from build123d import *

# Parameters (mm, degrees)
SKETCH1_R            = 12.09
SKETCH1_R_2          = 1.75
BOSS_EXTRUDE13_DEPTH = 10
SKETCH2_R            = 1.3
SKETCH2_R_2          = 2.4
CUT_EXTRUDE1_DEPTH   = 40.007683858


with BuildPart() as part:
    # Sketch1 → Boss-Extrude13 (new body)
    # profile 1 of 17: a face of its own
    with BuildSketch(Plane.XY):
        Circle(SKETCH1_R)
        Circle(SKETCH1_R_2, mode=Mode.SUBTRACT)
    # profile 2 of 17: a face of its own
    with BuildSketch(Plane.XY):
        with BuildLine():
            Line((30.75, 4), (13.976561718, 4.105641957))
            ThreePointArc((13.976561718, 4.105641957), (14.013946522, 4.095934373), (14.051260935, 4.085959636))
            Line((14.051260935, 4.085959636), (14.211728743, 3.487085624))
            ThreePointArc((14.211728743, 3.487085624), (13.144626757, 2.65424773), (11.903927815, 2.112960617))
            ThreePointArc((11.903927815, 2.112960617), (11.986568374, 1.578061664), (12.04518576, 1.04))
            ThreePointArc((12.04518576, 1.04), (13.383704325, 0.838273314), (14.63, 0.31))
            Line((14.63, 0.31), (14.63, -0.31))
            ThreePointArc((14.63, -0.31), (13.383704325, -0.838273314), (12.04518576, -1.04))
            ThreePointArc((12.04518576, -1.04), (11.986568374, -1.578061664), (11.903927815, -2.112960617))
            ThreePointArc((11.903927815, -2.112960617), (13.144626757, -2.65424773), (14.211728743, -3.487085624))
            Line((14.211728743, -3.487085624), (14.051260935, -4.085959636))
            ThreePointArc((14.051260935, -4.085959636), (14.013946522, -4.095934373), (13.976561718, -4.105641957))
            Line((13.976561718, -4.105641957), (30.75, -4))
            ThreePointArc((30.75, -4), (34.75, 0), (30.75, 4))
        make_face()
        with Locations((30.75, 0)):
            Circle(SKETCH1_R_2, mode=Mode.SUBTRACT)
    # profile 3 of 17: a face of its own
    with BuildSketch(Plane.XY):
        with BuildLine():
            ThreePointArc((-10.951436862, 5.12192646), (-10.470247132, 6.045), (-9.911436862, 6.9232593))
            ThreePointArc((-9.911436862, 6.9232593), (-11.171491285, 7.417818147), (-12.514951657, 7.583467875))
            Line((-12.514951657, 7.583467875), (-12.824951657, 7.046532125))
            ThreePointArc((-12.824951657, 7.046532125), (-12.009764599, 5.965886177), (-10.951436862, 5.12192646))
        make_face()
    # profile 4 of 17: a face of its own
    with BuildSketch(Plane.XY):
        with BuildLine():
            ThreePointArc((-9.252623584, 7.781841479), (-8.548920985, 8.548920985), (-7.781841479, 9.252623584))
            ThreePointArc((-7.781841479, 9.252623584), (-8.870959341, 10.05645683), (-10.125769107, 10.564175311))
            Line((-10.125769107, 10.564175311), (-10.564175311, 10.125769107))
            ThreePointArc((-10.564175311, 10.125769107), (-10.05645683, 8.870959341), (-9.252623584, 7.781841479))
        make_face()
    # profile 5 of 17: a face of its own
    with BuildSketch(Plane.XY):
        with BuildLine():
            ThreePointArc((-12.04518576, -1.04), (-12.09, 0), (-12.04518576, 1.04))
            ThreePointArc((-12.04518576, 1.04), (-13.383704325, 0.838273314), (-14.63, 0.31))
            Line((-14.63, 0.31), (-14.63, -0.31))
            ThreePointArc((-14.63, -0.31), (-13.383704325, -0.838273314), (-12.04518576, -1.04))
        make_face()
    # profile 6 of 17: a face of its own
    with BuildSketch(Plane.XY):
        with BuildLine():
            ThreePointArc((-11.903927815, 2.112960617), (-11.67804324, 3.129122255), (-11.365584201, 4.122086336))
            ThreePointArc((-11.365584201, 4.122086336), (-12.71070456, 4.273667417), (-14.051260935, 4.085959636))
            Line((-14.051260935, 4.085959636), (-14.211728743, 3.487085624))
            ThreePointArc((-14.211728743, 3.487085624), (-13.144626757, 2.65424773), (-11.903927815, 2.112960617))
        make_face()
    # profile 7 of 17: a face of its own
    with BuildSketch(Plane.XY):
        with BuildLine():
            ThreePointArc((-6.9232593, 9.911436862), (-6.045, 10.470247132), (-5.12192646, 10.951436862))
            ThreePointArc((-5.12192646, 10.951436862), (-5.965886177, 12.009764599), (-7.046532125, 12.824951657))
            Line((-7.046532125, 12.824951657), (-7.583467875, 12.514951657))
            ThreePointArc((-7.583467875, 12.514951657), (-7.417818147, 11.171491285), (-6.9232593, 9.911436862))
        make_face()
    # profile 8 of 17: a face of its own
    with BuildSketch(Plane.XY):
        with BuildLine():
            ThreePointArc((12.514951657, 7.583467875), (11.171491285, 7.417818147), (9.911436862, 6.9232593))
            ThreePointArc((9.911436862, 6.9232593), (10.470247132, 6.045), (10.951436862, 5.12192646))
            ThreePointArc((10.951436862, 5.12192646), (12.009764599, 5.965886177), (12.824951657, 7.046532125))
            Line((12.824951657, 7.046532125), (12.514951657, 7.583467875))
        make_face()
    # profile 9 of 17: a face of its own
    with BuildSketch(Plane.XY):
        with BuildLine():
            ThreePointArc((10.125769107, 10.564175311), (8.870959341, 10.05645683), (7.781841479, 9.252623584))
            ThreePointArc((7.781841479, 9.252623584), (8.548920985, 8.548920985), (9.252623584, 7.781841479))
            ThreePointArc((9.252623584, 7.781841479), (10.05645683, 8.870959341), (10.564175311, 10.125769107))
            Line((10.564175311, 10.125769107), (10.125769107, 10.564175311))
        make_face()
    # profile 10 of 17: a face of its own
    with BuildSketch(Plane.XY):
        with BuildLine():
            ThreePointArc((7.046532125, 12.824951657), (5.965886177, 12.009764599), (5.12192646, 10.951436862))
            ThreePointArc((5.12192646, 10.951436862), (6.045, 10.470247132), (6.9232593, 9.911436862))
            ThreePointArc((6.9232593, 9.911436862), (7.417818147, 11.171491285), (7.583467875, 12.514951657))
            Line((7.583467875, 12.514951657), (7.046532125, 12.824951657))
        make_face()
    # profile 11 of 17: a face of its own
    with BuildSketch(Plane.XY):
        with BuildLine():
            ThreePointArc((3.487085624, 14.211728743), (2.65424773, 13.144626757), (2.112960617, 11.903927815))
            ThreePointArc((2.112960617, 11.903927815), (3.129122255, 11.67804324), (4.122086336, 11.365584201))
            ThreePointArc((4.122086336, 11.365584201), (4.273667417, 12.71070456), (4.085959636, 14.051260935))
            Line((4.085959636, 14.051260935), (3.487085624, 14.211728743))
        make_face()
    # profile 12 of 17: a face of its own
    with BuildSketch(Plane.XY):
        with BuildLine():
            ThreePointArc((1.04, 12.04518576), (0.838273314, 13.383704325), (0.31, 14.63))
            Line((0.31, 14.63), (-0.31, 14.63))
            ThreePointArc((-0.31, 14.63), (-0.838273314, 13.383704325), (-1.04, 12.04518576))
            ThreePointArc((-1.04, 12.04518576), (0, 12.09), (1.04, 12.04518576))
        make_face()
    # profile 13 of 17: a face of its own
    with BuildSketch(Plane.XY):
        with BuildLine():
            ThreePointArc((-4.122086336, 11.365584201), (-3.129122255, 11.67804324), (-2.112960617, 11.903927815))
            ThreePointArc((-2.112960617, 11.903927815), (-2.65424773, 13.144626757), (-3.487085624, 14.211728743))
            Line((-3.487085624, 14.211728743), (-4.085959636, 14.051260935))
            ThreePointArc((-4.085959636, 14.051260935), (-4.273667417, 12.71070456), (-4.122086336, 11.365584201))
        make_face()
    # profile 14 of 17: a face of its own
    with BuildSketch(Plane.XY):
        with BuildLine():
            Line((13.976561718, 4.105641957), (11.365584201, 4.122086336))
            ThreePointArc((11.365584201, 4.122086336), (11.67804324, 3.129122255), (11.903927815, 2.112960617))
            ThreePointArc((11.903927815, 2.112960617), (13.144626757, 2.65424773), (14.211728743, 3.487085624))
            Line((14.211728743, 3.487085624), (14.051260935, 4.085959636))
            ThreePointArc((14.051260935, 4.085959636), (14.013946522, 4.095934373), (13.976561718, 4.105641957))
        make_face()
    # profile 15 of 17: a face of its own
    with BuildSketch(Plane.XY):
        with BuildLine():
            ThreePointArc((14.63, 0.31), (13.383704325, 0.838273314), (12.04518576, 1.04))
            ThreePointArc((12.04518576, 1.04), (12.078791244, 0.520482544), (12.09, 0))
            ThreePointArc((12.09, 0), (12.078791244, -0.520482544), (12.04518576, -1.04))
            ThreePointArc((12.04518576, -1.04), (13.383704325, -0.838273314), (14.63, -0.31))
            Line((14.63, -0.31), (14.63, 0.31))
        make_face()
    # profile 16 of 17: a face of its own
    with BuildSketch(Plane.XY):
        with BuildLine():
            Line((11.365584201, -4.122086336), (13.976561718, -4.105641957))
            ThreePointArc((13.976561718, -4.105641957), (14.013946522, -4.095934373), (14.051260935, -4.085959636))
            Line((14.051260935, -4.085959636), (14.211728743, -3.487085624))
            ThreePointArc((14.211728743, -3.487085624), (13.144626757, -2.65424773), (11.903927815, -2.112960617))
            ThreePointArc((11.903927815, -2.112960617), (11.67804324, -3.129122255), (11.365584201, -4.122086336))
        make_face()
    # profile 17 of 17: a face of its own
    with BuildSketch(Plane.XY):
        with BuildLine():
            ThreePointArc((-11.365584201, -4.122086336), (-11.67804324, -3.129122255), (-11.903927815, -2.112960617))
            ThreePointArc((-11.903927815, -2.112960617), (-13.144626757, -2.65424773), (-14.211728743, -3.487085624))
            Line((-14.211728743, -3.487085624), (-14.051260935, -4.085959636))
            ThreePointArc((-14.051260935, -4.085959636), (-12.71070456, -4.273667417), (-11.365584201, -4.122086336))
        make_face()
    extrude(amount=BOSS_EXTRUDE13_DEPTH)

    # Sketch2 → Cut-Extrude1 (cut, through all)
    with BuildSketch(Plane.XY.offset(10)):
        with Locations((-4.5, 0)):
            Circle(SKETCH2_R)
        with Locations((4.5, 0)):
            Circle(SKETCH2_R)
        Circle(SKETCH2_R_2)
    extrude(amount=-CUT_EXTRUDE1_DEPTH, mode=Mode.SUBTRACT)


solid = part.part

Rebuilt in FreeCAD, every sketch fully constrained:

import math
import FreeCAD as App
import Part
import Sketcher
from FreeCAD import Vector
Q = App.Units.Quantity

doc = App.newDocument("Part")
body = doc.addObject("PartDesign::Body", "Body")

sketch1 = doc.addObject("Sketcher::SketchObject", "Sketch")
body.addObject(sketch1)
sketch1.AttachmentSupport = (doc.XY_Plane, [""])
sketch1.MapMode = "FlatFace"
sketch1.addGeometry([
    Part.ArcOfCircle(Part.Circle(Vector(0, 0, 0), Vector(0, 0, 1), 12.1), math.radians(19.93), math.radians(25.07)),
    Part.ArcOfCircle(Part.Circle(Vector(8.1, 9.7, 0), Vector(0, 0, 1), 5.4), math.radians(-59), math.radians(-30)),
    Part.LineSegment(Vector(12.8, 7, 0), Vector(12.5, 7.6, 0)),
    Part.ArcOfCircle(Part.Circle(Vector(12.5, 2.2, 0), Vector(0, 0, 1), 5.4), math.radians(90), math.radians(119)),
    Part.ArcOfCircle(Part.Circle(Vector(0, 0, 0), Vector(0, 0, 1), 12.1), math.radians(34.93), math.radians(40.07)),
    Part.ArcOfCircle(Part.Circle(Vector(5.3, 11.5, 0), Vector(0, 0, 1), 5.4), math.radians(-44), math.radians(-15)),
    Part.LineSegment(Vector(10.6, 10.1, 0), Vector(10.1, 10.6, 0)),
    Part.ArcOfCircle(Part.Circle(Vector(11.5, 5.3, 0), Vector(0, 0, 1), 5.4), math.radians(105), math.radians(134)),
    Part.ArcOfCircle(Part.Circle(Vector(0, 0, 0), Vector(0, 0, 1), 12.1), math.radians(49.93), math.radians(55.07)),
    Part.ArcOfCircle(Part.Circle(Vector(2.2, 12.5, 0), Vector(0, 0, 1), 5.4), math.radians(-29), math.radians(0)),
    Part.LineSegment(Vector(7.6, 12.5, 0), Vector(7, 12.8, 0)),
    Part.ArcOfCircle(Part.Circle(Vector(9.7, 8.1, 0), Vector(0, 0, 1), 5.4), math.radians(120), math.radians(149)),
    Part.ArcOfCircle(Part.Circle(Vector(0, 0, 0), Vector(0, 0, 1), 12.1), math.radians(64.93), math.radians(70.07)),
    Part.ArcOfCircle(Part.Circle(Vector(-1.1, 12.6, 0), Vector(0, 0, 1), 5.4), math.radians(-14), math.radians(15)),
    Part.LineSegment(Vector(4.1, 14.1, 0), Vector(3.5, 14.2, 0)),
    Part.ArcOfCircle(Part.Circle(Vector(7.3, 10.4, 0), Vector(0, 0, 1), 5.4), math.radians(135), math.radians(164)),
    Part.ArcOfCircle(Part.Circle(Vector(0, 0, 0), Vector(0, 0, 1), 12.1), math.radians(79.93), math.radians(85.07)),
    Part.ArcOfCircle(Part.Circle(Vector(-4.4, 11.9, 0), Vector(0, 0, 1), 5.4), math.radians(1), math.radians(30)),
    Part.LineSegment(Vector(0.3, 14.6, 0), Vector(-0.3, 14.6, 0)),
    Part.ArcOfCircle(Part.Circle(Vector(4.4, 11.9, 0), Vector(0, 0, 1), 5.4), math.radians(150), math.radians(179)),
    Part.ArcOfCircle(Part.Circle(Vector(0, 0, 0), Vector(0, 0, 1), 12.1), math.radians(94.93), math.radians(100.07)),
    Part.ArcOfCircle(Part.Circle(Vector(-7.3, 10.4, 0), Vector(0, 0, 1), 5.4), math.radians(16), math.radians(45)),
    Part.LineSegment(Vector(-3.5, 14.2, 0), Vector(-4.1, 14.1, 0)),
    Part.ArcOfCircle(Part.Circle(Vector(1.1, 12.6, 0), Vector(0, 0, 1), 5.4), math.radians(165), math.radians(194)),
    Part.ArcOfCircle(Part.Circle(Vector(0, 0, 0), Vector(0, 0, 1), 12.1), math.radians(109.93), math.radians(115.07)),
    Part.ArcOfCircle(Part.Circle(Vector(-9.7, 8.1, 0), Vector(0, 0, 1), 5.4), math.radians(31), math.radians(60)),
    Part.LineSegment(Vector(-7, 12.8, 0), Vector(-7.6, 12.5, 0)),
    Part.ArcOfCircle(Part.Circle(Vector(-2.2, 12.5, 0), Vector(0, 0, 1), 5.4), math.radians(180), math.radians(209)),
    Part.ArcOfCircle(Part.Circle(Vector(0, 0, 0), Vector(0, 0, 1), 12.1), math.radians(124.93), math.radians(130.07)),
    Part.ArcOfCircle(Part.Circle(Vector(-11.5, 5.3, 0), Vector(0, 0, 1), 5.4), math.radians(46), math.radians(75)),
    Part.LineSegment(Vector(-10.1, 10.6, 0), Vector(-10.6, 10.1, 0)),
    Part.ArcOfCircle(Part.Circle(Vector(-5.3, 11.5, 0), Vector(0, 0, 1), 5.4), math.radians(-165), math.radians(-136)),
    Part.ArcOfCircle(Part.Circle(Vector(0, 0, 0), Vector(0, 0, 1), 12.1), math.radians(139.93), math.radians(145.07)),
    Part.ArcOfCircle(Part.Circle(Vector(-12.5, 2.2, 0), Vector(0, 0, 1), 5.4), math.radians(61), math.radians(90)),
    Part.LineSegment(Vector(-12.5, 7.6, 0), Vector(-12.8, 7, 0)),
    Part.ArcOfCircle(Part.Circle(Vector(-8.1, 9.7, 0), Vector(0, 0, 1), 5.4), math.radians(-150), math.radians(-121)),
    Part.ArcOfCircle(Part.Circle(Vector(0, 0, 0), Vector(0, 0, 1), 12.1), math.radians(154.93), math.radians(160.07)),
    Part.ArcOfCircle(Part.Circle(Vector(-12.6, -1.1, 0), Vector(0, 0, 1), 5.4), math.radians(76), math.radians(105)),
    Part.LineSegment(Vector(-14.1, 4.1, 0), Vector(-14.2, 3.5, 0)),
    Part.ArcOfCircle(Part.Circle(Vector(-10.4, 7.3, 0), Vector(0, 0, 1), 5.4), math.radians(-135), math.radians(-106)),
    Part.ArcOfCircle(Part.Circle(Vector(0, 0, 0), Vector(0, 0, 1), 12.1), math.radians(169.93), math.radians(175.07)),
    Part.ArcOfCircle(Part.Circle(Vector(-11.9, -4.4, 0), Vector(0, 0, 1), 5.4), math.radians(91), math.radians(120)),
    Part.LineSegment(Vector(-14.6, 0.3, 0), Vector(-14.6, -0.3, 0)),
    Part.ArcOfCircle(Part.Circle(Vector(-11.9, 4.4, 0), Vector(0, 0, 1), 5.4), math.radians(-120), math.radians(-91)),
    Part.ArcOfCircle(Part.Circle(Vector(0, 0, 0), Vector(0, 0, 1), 12.1), math.radians(-175.07), math.radians(-169.93)),
    Part.ArcOfCircle(Part.Circle(Vector(-10.4, -7.3, 0), Vector(0, 0, 1), 5.4), math.radians(106), math.radians(135)),
    Part.LineSegment(Vector(-14.2, -3.5, 0), Vector(-14.1, -4.1, 0)),
    Part.ArcOfCircle(Part.Circle(Vector(-12.6, 1.1, 0), Vector(0, 0, 1), 5.4), math.radians(-105), math.radians(-76)),
    Part.ArcOfCircle(Part.Circle(Vector(0, 0, 0), Vector(0, 0, 1), 12.1), math.radians(-160), math.radians(-20)),
    Part.LineSegment(Vector(11.4, -4.1, 0), Vector(14, -4.1, 0)),
    Part.LineSegment(Vector(14, -4.1, 0), Vector(30.8, -4, 0)),
    Part.ArcOfCircle(Part.Circle(Vector(30.8, 0, 0), Vector(0, 0, 1), 4), math.radians(-90), math.radians(90)),
    Part.LineSegment(Vector(30.8, 4, 0), Vector(14, 4.1, 0)),
    Part.LineSegment(Vector(14, 4.1, 0), Vector(11.4, 4.1, 0)),
    Part.Circle(Vector(0, 0, 0), Vector(0, 0, 1), 1.8),
    Part.Circle(Vector(30.8, 0, 0), Vector(0, 0, 1), 1.8),
], False)
sketch1.addConstraint([
    Sketcher.Constraint("Coincident", 0, 2, 1, 1),
    Sketcher.Constraint("Coincident", 1, 2, 2, 1),
    Sketcher.Constraint("Coincident", 2, 2, 3, 1),
    Sketcher.Constraint("Coincident", 3, 2, 4, 1),
    Sketcher.Constraint("Coincident", 4, 2, 5, 1),
    Sketcher.Constraint("Coincident", 5, 2, 6, 1),
    Sketcher.Constraint("Coincident", 6, 2, 7, 1),
    Sketcher.Constraint("Coincident", 7, 2, 8, 1),
    Sketcher.Constraint("Coincident", 8, 2, 9, 1),
    Sketcher.Constraint("Coincident", 9, 2, 10, 1),
    Sketcher.Constraint("Coincident", 10, 2, 11, 1),
    Sketcher.Constraint("Coincident", 11, 2, 12, 1),
    Sketcher.Constraint("Coincident", 12, 2, 13, 1),
    Sketcher.Constraint("Coincident", 13, 2, 14, 1),
    Sketcher.Constraint("Coincident", 14, 2, 15, 1),
    Sketcher.Constraint("Coincident", 15, 2, 16, 1),
    Sketcher.Constraint("Coincident", 16, 2, 17, 1),
    Sketcher.Constraint("Coincident", 17, 2, 18, 1),
    Sketcher.Constraint("Coincident", 18, 2, 19, 1),
    Sketcher.Constraint("Coincident", 19, 2, 20, 1),
    Sketcher.Constraint("Coincident", 20, 2, 21, 1),
    Sketcher.Constraint("Coincident", 21, 2, 22, 1),
    Sketcher.Constraint("Coincident", 22, 2, 23, 1),
    Sketcher.Constraint("Coincident", 23, 2, 24, 1),
    Sketcher.Constraint("Coincident", 24, 2, 25, 1),
    Sketcher.Constraint("Coincident", 25, 2, 26, 1),
    Sketcher.Constraint("Coincident", 26, 2, 27, 1),
    Sketcher.Constraint("Coincident", 27, 2, 28, 1),
    Sketcher.Constraint("Coincident", 28, 2, 29, 1),
    Sketcher.Constraint("Coincident", 29, 2, 30, 1),
    Sketcher.Constraint("Coincident", 30, 2, 31, 1),
    Sketcher.Constraint("Coincident", 31, 2, 32, 1),
    Sketcher.Constraint("Coincident", 32, 2, 33, 1),
    Sketcher.Constraint("Coincident", 33, 2, 34, 1),
    Sketcher.Constraint("Coincident", 34, 2, 35, 1),
    Sketcher.Constraint("Coincident", 35, 2, 36, 1),
    Sketcher.Constraint("Coincident", 36, 2, 37, 1),
    Sketcher.Constraint("Coincident", 37, 2, 38, 1),
    Sketcher.Constraint("Coincident", 38, 2, 39, 1),
    Sketcher.Constraint("Coincident", 39, 2, 40, 1),
    Sketcher.Constraint("Coincident", 40, 2, 41, 1),
    Sketcher.Constraint("Coincident", 41, 2, 42, 1),
    Sketcher.Constraint("Coincident", 42, 2, 43, 1),
    Sketcher.Constraint("Coincident", 43, 2, 44, 1),
    Sketcher.Constraint("Coincident", 44, 2, 45, 1),
    Sketcher.Constraint("Coincident", 45, 2, 46, 1),
    Sketcher.Constraint("Coincident", 46, 2, 47, 1),
    Sketcher.Constraint("Coincident", 47, 2, 48, 1),
    Sketcher.Constraint("Coincident", 48, 2, 49, 1),
    Sketcher.Constraint("Coincident", 49, 2, 50, 1),
    Sketcher.Constraint("Coincident", 50, 2, 51, 1),
    Sketcher.Constraint("Coincident", 51, 2, 52, 1),
    Sketcher.Constraint("Coincident", 52, 2, 53, 1),
    Sketcher.Constraint("Coincident", 53, 2, 0, 1),
    Sketcher.Constraint("Horizontal", 18),
    Sketcher.Constraint("Vertical", 42),
    Sketcher.Constraint("Coincident", 0, 3, -1, 1),
    Sketcher.Constraint("Coincident", 4, 3, -1, 1),
    Sketcher.Constraint("Coincident", 8, 3, -1, 1),
    Sketcher.Constraint("Coincident", 12, 3, -1, 1),
    Sketcher.Constraint("Coincident", 16, 3, -1, 1),
    Sketcher.Constraint("Coincident", 20, 3, -1, 1),
    Sketcher.Constraint("Coincident", 24, 3, -1, 1),
    Sketcher.Constraint("Coincident", 28, 3, -1, 1),
    Sketcher.Constraint("Coincident", 32, 3, -1, 1),
    Sketcher.Constraint("Coincident", 36, 3, -1, 1),
    Sketcher.Constraint("Coincident", 40, 3, -1, 1),
    Sketcher.Constraint("Coincident", 44, 3, -1, 1),
    Sketcher.Constraint("Coincident", 48, 3, -1, 1),
    Sketcher.Constraint("Coincident", 54, 3, -1, 1),
    Sketcher.Constraint("Coincident", 55, 3, 51, 3),
    Sketcher.Constraint("Equal", 1, 3),
    Sketcher.Constraint("Equal", 0, 4),
    Sketcher.Constraint("Equal", 3, 5),
    Sketcher.Constraint("Equal", 5, 7),
    Sketcher.Constraint("Equal", 4, 8),
    Sketcher.Constraint("Equal", 7, 9),
    Sketcher.Constraint("Equal", 9, 11),
    Sketcher.Constraint("Equal", 8, 12),
    Sketcher.Constraint("Equal", 11, 13),
    Sketcher.Constraint("Equal", 13, 15),
    Sketcher.Constraint("Equal", 12, 16),
    Sketcher.Constraint("Equal", 15, 17),
    Sketcher.Constraint("Equal", 17, 19),
    Sketcher.Constraint("Equal", 16, 20),
    Sketcher.Constraint("Equal", 19, 21),
    Sketcher.Constraint("Equal", 21, 23),
    Sketcher.Constraint("Equal", 20, 24),
    Sketcher.Constraint("Equal", 23, 25),
    Sketcher.Constraint("Equal", 25, 27),
    Sketcher.Constraint("Equal", 24, 28),
    Sketcher.Constraint("Equal", 27, 29),
    Sketcher.Constraint("Equal", 29, 31),
    Sketcher.Constraint("Equal", 28, 32),
    Sketcher.Constraint("Equal", 31, 33),
    Sketcher.Constraint("Equal", 33, 35),
    Sketcher.Constraint("Equal", 32, 36),
    Sketcher.Constraint("Equal", 35, 37),
    Sketcher.Constraint("Equal", 37, 39),
    Sketcher.Constraint("Equal", 36, 40),
    Sketcher.Constraint("Equal", 39, 41),
    Sketcher.Constraint("Equal", 41, 43),
    Sketcher.Constraint("Equal", 40, 44),
    Sketcher.Constraint("Equal", 43, 45),
    Sketcher.Constraint("Equal", 45, 47),
    Sketcher.Constraint("Equal", 44, 48),
    Sketcher.Constraint("Equal", 54, 55),
    Sketcher.Constraint("Symmetric", 17, 3, 19, 3, -2),
    Sketcher.Constraint("Symmetric", 15, 3, 21, 3, -2),
    Sketcher.Constraint("Symmetric", 13, 3, 23, 3, -2),
    Sketcher.Constraint("Symmetric", 11, 3, 25, 3, -2),
    Sketcher.Constraint("Symmetric", 9, 3, 27, 3, -2),
    Sketcher.Constraint("Symmetric", 7, 3, 29, 3, -2),
    Sketcher.Constraint("Symmetric", 5, 3, 31, 3, -2),
    Sketcher.Constraint("Symmetric", 3, 3, 33, 3, -2),
    Sketcher.Constraint("Symmetric", 1, 3, 35, 3, -2),
    Sketcher.Constraint("Symmetric", 41, 3, 43, 3, -1),
    Sketcher.Constraint("Symmetric", 39, 3, 45, 3, -1),
    Sketcher.Constraint("Symmetric", 37, 3, 47, 3, -1),
    Sketcher.Constraint("Symmetric", 50, 2, 51, 2, -1),
    Sketcher.Constraint("Symmetric", 49, 2, 52, 2, -1),
    Sketcher.Constraint("Perpendicular", 2, 26),
    Sketcher.Constraint("Perpendicular", 6, 30),
    Sketcher.Constraint("Perpendicular", 10, 34),
    Sketcher.Constraint("Perpendicular", 14, 38),
    Sketcher.Constraint("Perpendicular", 22, 46),
    Sketcher.Constraint("Parallel", 49, 50),
    Sketcher.Constraint("Parallel", 52, 53),
    Sketcher.Constraint("Horizontal", 14, 2, 21, 2),
    Sketcher.Constraint("Horizontal", 13, 2, 22, 2),
    Sketcher.Constraint("Horizontal", 10, 2, 25, 2),
    Sketcher.Constraint("Horizontal", 9, 2, 26, 2),
    Sketcher.Constraint("Horizontal", 6, 2, 29, 2),
    Sketcher.Constraint("Horizontal", 5, 2, 30, 2),
    Sketcher.Constraint("Horizontal", 1, 2, 34, 2),
    Sketcher.Constraint("Horizontal", 47, 2, 48, 2),
    Sketcher.Constraint("Vertical", 38, 2, 45, 2),
    Sketcher.Constraint("Vertical", 55, 3, 50, 2),
    Sketcher.Constraint("Equal", 18, 42),
    Sketcher.Constraint("Equal", 2, 6),
    Sketcher.Constraint("Equal", 6, 10),
    Sketcher.Constraint("Equal", 10, 14),
    Sketcher.Constraint("Equal", 34, 38),
    Sketcher.Constraint("Radius", 51, Q("4 mm")),
    Sketcher.Constraint("Diameter", 54, Q("3.5 mm")),
    Sketcher.Constraint("Radius", 1, Q("5.4 mm")),
    Sketcher.Constraint("Angle", 2, Q("120 deg")),
    Sketcher.Constraint("Angle", 14, Q("165 deg")),
    Sketcher.Constraint("Radius", 0, Q("12.09 mm")),
    Sketcher.Constraint("DistanceX", 18, 2, 18, 1, Q("0.62 mm")),
    Sketcher.Constraint("Distance", 2, Q("0.62 mm")),
    Sketcher.Constraint("DistanceX", -1, 1, 51, 3, Q("30.75 mm")),
    Sketcher.Constraint("DistanceX", -1, 1, 16, 2, Q("1.04 mm")),
    Sketcher.Constraint("DistanceY", -1, 1, 17, 2, Q("14.63 mm")),
    Sketcher.Constraint("DistanceY", -1, 1, 40, 2, Q("1.04 mm")),
    Sketcher.Constraint("DistanceX", 41, 2, -1, 1, Q("14.63 mm")),
    Sketcher.Constraint("Distance", 49, Q("2.611029 mm")),
    Sketcher.Constraint("Distance", 50, Q("16.773771 mm")),
    Sketcher.Constraint("DistanceY", -1, 1, 1, 3, Q("9.732559 mm")),
    Sketcher.Constraint("DistanceX", -1, 1, 3, 3, Q("12.49883 mm")),
    Sketcher.Constraint("DistanceY", -1, 1, 3, 3, Q("2.183492 mm")),
    Sketcher.Constraint("DistanceX", -1, 1, 9, 3, Q("2.183492 mm")),
    Sketcher.Constraint("DistanceY", -1, 1, 9, 3, Q("12.49883 mm")),
    Sketcher.Constraint("DistanceX", -1, 1, 11, 3, Q("9.732559 mm")),
    Sketcher.Constraint("DistanceY", -1, 1, 15, 3, Q("10.38197 mm")),
    Sketcher.Constraint("DistanceX", 39, 3, -1, 1, Q("10.38197 mm")),
    Sketcher.Constraint("DistanceX", -1, 1, 1, 2, Q("12.824952 mm")),
    Sketcher.Constraint("DistanceY", -1, 1, 4, 2, Q("7.781841 mm")),
    Sketcher.Constraint("DistanceY", -1, 1, 5, 2, Q("10.125769 mm")),
    Sketcher.Constraint("DistanceX", -1, 1, 6, 2, Q("10.125769 mm")),
    Sketcher.Constraint("DistanceX", -1, 1, 7, 2, Q("7.781841 mm")),
    Sketcher.Constraint("DistanceY", -1, 1, 9, 2, Q("12.514952 mm")),
    Sketcher.Constraint("DistanceX", -1, 1, 13, 2, Q("4.08596 mm")),
    Sketcher.Constraint("DistanceY", -1, 1, 13, 2, Q("14.051261 mm")),
    Sketcher.Constraint("DistanceX", 37, 2, -1, 1, Q("14.051261 mm")),
    Sketcher.Constraint("DistanceY", -1, 1, 37, 2, Q("4.08596 mm")),
    Sketcher.Constraint("DistanceX", 13, 3, -1, 1, Q("1.125844 mm")),
])
pad1 = doc.addObject("PartDesign::Pad", "Pad")
body.addObject(pad1)
pad1.Profile = sketch1
pad1.Length = 10

sketch2 = doc.addObject("Sketcher::SketchObject", "Sketch001")
body.addObject(sketch2)
sketch2.AttachmentSupport = (doc.XY_Plane, [""])
sketch2.MapMode = "FlatFace"
sketch2.AttachmentOffset = App.Placement(Vector(0, 0, 10), App.Rotation())
sketch2.addGeometry([
    Part.Circle(Vector(-4.5, 0, 0), Vector(0, 0, 1), 1.3),
    Part.Circle(Vector(4.5, 0, 0), Vector(0, 0, 1), 1.3),
    Part.Circle(Vector(0, 0, 0), Vector(0, 0, 1), 2.4),
], False)
sketch2.addConstraint([
    Sketcher.Constraint("Coincident", 2, 3, -1, 1),
    Sketcher.Constraint("Equal", 0, 1),
    Sketcher.Constraint("Symmetric", 0, 3, 1, 3, -1, 1),
    Sketcher.Constraint("PointOnObject", 0, 3, -1),
    Sketcher.Constraint("Diameter", 0, Q("2.6 mm")),
    Sketcher.Constraint("Diameter", 2, Q("4.8 mm")),
    Sketcher.Constraint("DistanceX", 0, 3, 1, 3, Q("9 mm")),
])
pocket1 = doc.addObject("PartDesign::Pocket", "Pocket")
body.addObject(pocket1)
pocket1.Profile = sketch2
pocket1.Type = "ThroughAll"

doc.recompute()
